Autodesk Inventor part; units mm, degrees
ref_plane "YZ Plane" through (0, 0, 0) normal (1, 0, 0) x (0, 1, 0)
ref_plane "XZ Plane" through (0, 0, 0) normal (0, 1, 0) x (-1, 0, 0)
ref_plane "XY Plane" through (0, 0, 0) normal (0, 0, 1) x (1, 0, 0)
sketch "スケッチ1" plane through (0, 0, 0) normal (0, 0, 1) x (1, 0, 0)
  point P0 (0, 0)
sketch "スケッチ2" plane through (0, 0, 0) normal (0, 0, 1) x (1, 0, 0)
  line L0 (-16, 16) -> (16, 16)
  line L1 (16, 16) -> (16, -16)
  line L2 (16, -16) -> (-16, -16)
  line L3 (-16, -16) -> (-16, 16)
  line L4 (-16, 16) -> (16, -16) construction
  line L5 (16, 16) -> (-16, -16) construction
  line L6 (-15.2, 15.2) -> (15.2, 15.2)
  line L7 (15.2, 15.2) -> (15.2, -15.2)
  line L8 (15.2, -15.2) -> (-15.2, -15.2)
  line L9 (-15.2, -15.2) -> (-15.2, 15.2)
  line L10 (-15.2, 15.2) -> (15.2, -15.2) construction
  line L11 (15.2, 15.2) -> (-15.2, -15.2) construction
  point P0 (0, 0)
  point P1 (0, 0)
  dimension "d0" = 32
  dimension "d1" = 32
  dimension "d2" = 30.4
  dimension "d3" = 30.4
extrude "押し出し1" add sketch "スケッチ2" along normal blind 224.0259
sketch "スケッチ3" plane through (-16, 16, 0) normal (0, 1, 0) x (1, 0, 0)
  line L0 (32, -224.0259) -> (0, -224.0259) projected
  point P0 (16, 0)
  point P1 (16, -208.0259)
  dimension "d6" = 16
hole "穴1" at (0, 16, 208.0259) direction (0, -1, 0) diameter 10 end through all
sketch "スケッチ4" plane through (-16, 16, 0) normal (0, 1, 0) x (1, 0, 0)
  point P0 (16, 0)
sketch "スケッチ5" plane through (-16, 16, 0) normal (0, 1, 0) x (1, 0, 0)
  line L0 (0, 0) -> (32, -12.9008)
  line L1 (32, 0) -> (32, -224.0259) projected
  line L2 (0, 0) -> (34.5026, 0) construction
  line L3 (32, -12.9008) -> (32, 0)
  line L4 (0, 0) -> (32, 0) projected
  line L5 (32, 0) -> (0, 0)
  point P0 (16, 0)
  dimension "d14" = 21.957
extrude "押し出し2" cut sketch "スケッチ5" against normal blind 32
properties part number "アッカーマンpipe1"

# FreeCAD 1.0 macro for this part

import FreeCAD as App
import Part
import Sketcher
Q = App.Units.Quantity


def add_polygon(sketch, points):
    """Adds a closed chain of lines whose ends are joined by coincident constraints."""
    first, n = sketch.GeometryCount, len(points)
    for a, b in zip(points, points[1:] + points[:1]):
        sketch.addGeometry(Part.LineSegment(App.Vector(*a, 0), App.Vector(*b, 0)), False)
    for i in range(n):
        sketch.addConstraint(Sketcher.Constraint("Coincident", first + i, 2, first + (i + 1) % n, 1))

doc = App.newDocument("Part")
params = doc.addObject("Spreadsheet::Sheet", "Params")
for row, (alias, value) in enumerate([
    ("sketch1_width", "32 mm"),
    ("sketch1_width2", "30.4 mm"),
    ("pad1_length", "224.0259 mm"),
    ("sketch2_diameter", "10 mm"),
    ("hole_diameter", "10 mm"),
    ("sketch3_width", "32 mm"),
    ("pocket1_length", "32 mm"),
], start=1):
    params.set(f"A{row}", alias)
    params.set(f"B{row}", "=" + value)
    params.setAlias(f"B{row}", alias)

body = doc.addObject("PartDesign::Body", "Body")

# Sketch on XY plane
sketch1 = body.newObject("Sketcher::SketchObject", "Sketch")
sketch1.AttachmentSupport = (doc.getObject("XY_Plane"), [""])
sketch1.MapMode = "FlatFace"
add_polygon(sketch1, [(16, 16), (-16, 16), (-16, -16), (16, -16)])  # lines 0-3
add_polygon(sketch1, [(-15, -15), (-15, 15), (15, 15), (15, -15)])  # lines 4-7
sketch1.addConstraint(Sketcher.Constraint("Horizontal", 0))
sketch1.addConstraint(Sketcher.Constraint("Vertical", 1))
sketch1.addConstraint(Sketcher.Constraint("Horizontal", 2))
sketch1.addConstraint(Sketcher.Constraint("Vertical", 3))
sketch1.addConstraint(Sketcher.Constraint("Vertical", 4))
sketch1.addConstraint(Sketcher.Constraint("Horizontal", 5))
sketch1.addConstraint(Sketcher.Constraint("Vertical", 6))
sketch1.addConstraint(Sketcher.Constraint("Horizontal", 7))
sketch1.addConstraint(Sketcher.Constraint("Symmetric", 0, 2, 2, 2, -1, 1))
sketch1.addConstraint(Sketcher.Constraint("Symmetric", 4, 2, 6, 2, -1, 1))
sketch1.addConstraint(Sketcher.Constraint("Equal", 2, 1))
sketch1.addConstraint(Sketcher.Constraint("Equal", 7, 4))
sketch1.addConstraint(Sketcher.Constraint("DistanceX", 0, 2, 0, 1, Q("32 mm")))
sketch1.addConstraint(Sketcher.Constraint("DistanceX", 5, 1, 5, 2, Q("30.4 mm")))
sketch1.setExpression("Constraints[20]", "Params.sketch1_width")
sketch1.setExpression("Constraints[21]", "Params.sketch1_width2")
pad1 = body.newObject("PartDesign::Pad", "Pad")
pad1.Profile = sketch1
pad1.setExpression("Length", "Params.pad1_length")

# Sketch on XZ plane
sketch2 = body.newObject("Sketcher::SketchObject", "Sketch001")
sketch2.AttachmentSupport = (doc.getObject("XZ_Plane"), [""])
sketch2.MapMode = "FlatFace"
sketch2.AttachmentOffset = App.Placement(App.Vector(0, 0, -16), App.Rotation())
sketch2.addGeometry(Part.Circle(App.Vector(0, 208, 0), App.Vector(0, 0, 1), 5), False)
sketch2.addConstraint(Sketcher.Constraint("PointOnObject", 0, 3, -2))
sketch2.addConstraint(Sketcher.Constraint("Diameter", 0, Q("10 mm")))
sketch2.addConstraint(Sketcher.Constraint("DistanceY", -1, 1, 0, 3, Q("208.026 mm")))
sketch2.setExpression("Constraints[1]", "Params.sketch2_diameter")
doc.recompute()
hole = body.newObject("PartDesign::Hole", "Hole")
hole.Profile = sketch2
hole.ThreadType = "None"
hole.setExpression("Diameter", "Params.hole_diameter")
hole.DepthType = "ThroughAll"
hole.Reversed = True

# Sketch on XZ plane
sketch3 = body.newObject("Sketcher::SketchObject", "Sketch002")
sketch3.AttachmentSupport = (doc.getObject("XZ_Plane"), [""])
sketch3.MapMode = "FlatFace"
sketch3.AttachmentOffset = App.Placement(App.Vector(0, 0, -16), App.Rotation())
add_polygon(sketch3, [(16, 0), (-16, 0), (16, 13)])  # lines 0-2
sketch3.addConstraint(Sketcher.Constraint("Horizontal", 0))
sketch3.addConstraint(Sketcher.Constraint("Vertical", 2))
sketch3.addConstraint(Sketcher.Constraint("Symmetric", 0, 2, 2, 2, -1, 1))
sketch3.addConstraint(Sketcher.Constraint("DistanceX", 0, 2, 0, 1, Q("32 mm")))
sketch3.addConstraint(Sketcher.Constraint("DistanceY", 2, 2, 2, 1, Q("12.9008 mm")))
sketch3.setExpression("Constraints[6]", "Params.sketch3_width")
pocket1 = body.newObject("PartDesign::Pocket", "Pocket")
pocket1.Profile = sketch3
pocket1.setExpression("Length", "Params.pocket1_length")
pocket1.Reversed = True

doc.recompute()
